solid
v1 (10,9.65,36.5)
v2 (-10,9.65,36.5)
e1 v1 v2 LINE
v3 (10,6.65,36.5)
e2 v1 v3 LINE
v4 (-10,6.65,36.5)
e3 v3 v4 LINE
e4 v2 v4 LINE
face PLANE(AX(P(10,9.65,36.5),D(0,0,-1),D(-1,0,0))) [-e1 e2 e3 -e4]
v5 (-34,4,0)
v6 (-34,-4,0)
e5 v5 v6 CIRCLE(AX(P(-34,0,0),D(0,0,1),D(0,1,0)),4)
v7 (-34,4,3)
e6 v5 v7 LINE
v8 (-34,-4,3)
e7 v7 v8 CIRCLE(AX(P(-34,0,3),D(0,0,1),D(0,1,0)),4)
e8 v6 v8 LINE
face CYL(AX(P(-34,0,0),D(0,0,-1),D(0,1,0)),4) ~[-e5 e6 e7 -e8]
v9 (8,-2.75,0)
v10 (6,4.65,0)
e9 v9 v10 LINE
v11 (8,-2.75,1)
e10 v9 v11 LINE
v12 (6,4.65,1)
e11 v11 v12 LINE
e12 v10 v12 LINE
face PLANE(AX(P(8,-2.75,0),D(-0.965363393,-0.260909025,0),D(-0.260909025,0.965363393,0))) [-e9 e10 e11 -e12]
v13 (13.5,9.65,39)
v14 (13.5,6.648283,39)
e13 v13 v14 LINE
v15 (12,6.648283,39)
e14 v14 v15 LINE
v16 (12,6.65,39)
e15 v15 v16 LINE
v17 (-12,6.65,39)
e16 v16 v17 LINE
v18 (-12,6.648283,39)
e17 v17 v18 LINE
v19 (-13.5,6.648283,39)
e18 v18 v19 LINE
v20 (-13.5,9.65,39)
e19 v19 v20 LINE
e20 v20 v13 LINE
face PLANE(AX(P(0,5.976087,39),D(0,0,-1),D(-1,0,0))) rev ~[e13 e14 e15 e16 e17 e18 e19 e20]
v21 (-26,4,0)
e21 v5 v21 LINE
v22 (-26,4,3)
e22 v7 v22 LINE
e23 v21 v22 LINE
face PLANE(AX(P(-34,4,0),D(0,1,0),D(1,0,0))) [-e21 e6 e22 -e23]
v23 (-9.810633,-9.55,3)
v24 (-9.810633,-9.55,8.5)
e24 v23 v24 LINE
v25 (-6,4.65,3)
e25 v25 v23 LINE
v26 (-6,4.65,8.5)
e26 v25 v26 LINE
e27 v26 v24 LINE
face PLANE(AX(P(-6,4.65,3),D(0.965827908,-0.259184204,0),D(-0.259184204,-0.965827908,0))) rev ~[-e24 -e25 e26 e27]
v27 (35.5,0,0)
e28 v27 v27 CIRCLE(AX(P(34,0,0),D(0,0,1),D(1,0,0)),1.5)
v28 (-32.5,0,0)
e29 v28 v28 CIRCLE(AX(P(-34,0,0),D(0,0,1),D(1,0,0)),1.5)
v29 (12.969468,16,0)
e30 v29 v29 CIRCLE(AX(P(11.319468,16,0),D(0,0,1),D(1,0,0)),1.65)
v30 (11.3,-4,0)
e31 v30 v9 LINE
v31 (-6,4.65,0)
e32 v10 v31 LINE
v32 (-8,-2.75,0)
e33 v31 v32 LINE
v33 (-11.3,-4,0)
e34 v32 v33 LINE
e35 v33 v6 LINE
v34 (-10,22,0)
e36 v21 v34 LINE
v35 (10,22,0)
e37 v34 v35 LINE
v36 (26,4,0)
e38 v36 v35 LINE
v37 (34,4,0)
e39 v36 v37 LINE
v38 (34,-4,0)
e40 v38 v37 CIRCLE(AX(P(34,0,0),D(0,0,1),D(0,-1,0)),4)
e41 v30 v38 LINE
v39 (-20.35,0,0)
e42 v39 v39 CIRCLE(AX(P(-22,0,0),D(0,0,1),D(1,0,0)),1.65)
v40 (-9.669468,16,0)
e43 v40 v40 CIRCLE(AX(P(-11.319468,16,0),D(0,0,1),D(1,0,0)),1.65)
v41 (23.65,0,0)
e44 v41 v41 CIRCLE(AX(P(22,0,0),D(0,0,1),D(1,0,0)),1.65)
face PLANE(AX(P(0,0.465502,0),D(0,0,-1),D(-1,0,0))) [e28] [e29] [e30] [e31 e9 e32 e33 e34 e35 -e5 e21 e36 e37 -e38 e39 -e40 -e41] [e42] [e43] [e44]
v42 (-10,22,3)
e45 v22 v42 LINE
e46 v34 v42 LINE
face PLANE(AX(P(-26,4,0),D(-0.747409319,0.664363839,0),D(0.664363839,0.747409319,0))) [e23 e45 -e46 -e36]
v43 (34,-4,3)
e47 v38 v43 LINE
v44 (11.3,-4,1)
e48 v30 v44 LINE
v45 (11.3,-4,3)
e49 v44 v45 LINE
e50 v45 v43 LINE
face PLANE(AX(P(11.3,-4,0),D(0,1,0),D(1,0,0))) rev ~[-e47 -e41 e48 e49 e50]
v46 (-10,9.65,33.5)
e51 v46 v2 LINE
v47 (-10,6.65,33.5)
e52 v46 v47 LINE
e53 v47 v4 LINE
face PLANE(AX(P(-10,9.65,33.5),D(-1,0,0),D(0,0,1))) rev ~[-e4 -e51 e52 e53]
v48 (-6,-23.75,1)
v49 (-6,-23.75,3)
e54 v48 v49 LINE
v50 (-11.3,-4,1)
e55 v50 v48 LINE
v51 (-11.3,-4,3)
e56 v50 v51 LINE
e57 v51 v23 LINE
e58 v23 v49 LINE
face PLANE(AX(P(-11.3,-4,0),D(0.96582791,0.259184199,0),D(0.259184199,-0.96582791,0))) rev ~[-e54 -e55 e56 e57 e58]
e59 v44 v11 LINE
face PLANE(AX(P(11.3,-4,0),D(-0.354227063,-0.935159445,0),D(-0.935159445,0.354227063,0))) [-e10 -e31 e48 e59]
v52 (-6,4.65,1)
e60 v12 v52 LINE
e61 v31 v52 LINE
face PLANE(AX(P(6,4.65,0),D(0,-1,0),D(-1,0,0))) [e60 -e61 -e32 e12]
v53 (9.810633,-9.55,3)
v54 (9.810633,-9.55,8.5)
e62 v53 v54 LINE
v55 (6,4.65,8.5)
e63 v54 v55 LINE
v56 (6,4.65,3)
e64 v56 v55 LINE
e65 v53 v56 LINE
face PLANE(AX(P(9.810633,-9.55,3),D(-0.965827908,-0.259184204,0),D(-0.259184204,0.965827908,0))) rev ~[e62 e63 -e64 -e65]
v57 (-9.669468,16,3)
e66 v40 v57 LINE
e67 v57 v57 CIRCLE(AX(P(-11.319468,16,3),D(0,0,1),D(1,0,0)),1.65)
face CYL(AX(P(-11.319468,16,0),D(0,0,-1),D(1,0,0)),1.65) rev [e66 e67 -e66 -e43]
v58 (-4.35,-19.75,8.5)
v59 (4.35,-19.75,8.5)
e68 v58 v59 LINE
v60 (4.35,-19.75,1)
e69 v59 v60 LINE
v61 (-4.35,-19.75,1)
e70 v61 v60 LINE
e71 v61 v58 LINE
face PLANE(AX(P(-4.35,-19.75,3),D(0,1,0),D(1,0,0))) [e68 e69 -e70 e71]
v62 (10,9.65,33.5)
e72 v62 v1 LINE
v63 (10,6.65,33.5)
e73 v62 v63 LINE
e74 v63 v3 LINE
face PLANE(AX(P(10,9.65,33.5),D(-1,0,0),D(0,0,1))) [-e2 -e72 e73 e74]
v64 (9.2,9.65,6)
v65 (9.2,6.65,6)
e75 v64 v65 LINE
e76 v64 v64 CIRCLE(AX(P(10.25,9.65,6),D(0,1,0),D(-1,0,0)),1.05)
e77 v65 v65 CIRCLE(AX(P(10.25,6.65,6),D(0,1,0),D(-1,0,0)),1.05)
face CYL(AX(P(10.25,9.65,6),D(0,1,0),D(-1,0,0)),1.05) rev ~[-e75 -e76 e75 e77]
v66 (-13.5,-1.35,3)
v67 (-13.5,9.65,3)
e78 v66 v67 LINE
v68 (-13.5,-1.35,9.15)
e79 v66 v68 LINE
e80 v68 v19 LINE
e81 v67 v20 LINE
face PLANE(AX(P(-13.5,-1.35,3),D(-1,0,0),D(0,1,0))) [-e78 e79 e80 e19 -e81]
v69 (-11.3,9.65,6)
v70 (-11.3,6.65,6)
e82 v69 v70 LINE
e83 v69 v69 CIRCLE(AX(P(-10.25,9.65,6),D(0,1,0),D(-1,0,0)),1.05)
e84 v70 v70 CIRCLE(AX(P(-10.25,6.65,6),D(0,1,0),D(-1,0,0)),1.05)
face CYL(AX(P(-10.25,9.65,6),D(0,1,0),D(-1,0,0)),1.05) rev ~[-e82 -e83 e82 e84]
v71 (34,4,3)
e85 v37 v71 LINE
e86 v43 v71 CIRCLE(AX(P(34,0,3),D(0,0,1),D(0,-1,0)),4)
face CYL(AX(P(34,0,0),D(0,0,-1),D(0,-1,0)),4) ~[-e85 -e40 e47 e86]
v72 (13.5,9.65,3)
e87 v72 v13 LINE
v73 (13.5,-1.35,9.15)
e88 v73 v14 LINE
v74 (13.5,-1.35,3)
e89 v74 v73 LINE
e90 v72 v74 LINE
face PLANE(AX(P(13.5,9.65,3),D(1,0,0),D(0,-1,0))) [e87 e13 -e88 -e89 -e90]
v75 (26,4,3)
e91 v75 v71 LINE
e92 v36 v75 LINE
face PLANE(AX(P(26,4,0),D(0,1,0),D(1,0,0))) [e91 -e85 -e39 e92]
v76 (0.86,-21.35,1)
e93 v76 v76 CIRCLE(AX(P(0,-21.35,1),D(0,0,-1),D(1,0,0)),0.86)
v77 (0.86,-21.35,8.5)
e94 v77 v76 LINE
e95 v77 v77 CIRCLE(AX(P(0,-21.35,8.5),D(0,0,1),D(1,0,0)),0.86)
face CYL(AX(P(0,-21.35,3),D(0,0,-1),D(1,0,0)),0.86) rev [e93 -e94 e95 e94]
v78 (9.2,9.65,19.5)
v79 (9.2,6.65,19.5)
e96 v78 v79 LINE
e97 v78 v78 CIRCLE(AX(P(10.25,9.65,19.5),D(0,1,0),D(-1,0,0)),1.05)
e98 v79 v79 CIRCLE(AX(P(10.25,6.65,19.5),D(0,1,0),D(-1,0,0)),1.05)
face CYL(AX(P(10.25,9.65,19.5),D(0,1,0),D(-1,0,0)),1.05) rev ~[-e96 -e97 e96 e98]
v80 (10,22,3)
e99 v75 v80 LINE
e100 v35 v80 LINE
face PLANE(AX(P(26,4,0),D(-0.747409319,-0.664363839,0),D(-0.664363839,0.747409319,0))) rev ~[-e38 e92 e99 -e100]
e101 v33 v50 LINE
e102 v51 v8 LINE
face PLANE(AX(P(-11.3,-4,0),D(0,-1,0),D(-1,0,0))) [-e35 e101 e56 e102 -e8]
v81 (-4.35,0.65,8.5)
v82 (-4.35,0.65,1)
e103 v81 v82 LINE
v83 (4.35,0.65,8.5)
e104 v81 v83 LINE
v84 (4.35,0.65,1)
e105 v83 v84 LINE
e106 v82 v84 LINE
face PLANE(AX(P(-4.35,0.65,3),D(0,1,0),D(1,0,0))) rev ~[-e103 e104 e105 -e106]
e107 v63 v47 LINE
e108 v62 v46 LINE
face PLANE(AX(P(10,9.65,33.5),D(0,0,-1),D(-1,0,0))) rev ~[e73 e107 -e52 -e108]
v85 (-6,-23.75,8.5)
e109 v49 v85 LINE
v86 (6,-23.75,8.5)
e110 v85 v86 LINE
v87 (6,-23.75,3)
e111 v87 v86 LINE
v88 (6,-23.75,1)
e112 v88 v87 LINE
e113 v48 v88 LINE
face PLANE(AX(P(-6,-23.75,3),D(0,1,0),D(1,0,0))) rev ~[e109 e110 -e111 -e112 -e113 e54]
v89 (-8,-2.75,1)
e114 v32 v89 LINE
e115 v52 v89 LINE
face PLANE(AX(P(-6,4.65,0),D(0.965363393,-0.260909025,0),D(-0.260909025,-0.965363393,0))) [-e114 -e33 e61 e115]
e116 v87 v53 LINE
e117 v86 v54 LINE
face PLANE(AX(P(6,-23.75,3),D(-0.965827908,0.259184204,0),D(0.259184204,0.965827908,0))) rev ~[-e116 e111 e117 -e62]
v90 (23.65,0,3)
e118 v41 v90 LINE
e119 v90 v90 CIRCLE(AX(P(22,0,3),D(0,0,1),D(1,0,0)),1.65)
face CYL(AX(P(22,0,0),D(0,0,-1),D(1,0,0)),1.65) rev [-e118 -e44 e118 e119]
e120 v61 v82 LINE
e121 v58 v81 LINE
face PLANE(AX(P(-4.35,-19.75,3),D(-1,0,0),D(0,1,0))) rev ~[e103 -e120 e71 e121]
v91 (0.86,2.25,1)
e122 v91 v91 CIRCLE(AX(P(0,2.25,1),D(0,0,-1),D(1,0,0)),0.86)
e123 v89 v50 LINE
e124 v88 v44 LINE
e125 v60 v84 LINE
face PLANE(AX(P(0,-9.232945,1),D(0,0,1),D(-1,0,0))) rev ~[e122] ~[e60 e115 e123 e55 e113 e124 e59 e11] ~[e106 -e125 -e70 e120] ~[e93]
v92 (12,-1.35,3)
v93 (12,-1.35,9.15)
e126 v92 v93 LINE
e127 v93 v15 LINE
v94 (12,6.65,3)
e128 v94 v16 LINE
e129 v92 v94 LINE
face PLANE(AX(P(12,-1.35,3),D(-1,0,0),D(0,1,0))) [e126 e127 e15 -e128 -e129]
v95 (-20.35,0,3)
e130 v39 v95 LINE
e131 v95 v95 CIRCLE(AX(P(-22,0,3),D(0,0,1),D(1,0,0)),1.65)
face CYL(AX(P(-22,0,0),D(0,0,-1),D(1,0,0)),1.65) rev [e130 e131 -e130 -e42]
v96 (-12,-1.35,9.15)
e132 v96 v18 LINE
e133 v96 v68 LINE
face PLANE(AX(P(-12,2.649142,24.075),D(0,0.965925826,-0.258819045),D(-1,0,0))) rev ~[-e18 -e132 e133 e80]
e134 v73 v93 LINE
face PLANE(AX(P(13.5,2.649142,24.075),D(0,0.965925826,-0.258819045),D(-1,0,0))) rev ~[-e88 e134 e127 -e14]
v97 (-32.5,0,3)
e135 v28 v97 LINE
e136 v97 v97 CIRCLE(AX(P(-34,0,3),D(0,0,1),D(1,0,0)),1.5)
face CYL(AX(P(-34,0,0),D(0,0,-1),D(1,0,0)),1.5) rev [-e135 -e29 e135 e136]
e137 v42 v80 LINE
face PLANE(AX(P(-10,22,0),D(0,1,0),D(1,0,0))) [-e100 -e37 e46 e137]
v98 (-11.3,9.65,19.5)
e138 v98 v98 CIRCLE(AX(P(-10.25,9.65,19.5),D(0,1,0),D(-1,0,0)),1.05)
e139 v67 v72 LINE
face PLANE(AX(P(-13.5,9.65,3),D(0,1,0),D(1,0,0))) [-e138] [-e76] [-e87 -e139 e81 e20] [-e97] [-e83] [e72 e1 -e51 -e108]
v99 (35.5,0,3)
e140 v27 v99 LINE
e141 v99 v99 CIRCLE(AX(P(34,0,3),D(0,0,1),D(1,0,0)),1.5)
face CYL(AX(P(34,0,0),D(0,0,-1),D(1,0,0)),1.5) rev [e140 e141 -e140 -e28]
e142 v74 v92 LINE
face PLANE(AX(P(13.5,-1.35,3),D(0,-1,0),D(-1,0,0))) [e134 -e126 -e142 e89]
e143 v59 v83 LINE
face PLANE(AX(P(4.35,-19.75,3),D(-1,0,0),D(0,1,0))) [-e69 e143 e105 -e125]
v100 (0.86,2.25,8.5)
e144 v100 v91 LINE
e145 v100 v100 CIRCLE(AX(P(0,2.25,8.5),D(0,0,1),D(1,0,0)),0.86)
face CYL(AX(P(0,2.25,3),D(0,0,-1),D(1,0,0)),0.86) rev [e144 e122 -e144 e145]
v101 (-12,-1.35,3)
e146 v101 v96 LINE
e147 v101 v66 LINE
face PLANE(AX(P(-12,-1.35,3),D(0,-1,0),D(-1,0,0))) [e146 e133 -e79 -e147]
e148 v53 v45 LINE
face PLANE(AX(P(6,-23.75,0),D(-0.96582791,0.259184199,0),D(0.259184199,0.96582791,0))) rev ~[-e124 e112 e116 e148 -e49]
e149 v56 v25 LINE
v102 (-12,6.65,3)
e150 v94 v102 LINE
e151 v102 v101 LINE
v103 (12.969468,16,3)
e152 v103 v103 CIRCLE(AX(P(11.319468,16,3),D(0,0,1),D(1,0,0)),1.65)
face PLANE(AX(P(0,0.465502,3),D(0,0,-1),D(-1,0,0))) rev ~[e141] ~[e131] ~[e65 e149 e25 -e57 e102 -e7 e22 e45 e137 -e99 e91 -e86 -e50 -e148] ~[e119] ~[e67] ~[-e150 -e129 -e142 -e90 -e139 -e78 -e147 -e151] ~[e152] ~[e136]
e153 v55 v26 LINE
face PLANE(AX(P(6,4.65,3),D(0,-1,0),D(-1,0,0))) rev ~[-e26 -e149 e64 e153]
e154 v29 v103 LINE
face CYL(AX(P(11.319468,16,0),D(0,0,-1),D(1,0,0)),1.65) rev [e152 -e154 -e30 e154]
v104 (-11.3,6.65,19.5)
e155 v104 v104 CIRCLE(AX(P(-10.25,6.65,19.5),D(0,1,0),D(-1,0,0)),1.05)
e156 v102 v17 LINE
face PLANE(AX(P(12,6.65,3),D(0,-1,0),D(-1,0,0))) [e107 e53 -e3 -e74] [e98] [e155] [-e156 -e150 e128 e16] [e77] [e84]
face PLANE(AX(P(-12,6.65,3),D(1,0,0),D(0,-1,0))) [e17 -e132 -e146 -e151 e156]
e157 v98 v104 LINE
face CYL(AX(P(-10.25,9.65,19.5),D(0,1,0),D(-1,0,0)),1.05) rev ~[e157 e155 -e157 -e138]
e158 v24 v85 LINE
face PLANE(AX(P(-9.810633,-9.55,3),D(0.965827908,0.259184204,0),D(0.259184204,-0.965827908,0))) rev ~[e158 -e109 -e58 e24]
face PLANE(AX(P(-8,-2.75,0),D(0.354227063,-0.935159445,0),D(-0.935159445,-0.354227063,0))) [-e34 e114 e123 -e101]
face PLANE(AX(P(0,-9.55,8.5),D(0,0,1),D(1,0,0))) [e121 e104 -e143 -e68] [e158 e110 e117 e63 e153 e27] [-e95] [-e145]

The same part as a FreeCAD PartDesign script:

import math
import FreeCAD as App
import Part
import Sketcher
Q = App.Units.Quantity


def edges_at(feature, points):
    """Names of the edges that pass closest to the given points."""
    edges = feature.Shape.Edges
    near = lambda p: min(range(len(edges)), key=lambda i: edges[i].distToShape(Part.Vertex(*p))[0])
    return sorted({f"Edge{near(p) + 1}" for p in points})

doc = App.newDocument("Part")
params = doc.addObject("Spreadsheet::Sheet", "Params")
for row, (alias, value) in enumerate([
    ("sketch1_diameter", "3 mm"),
    ("sketch1_radius", "4 mm"),
    ("sketch1_diameter2", "3.3 mm"),
    ("sketch1_diameter3", "1.72 mm"),
    ("sketch1_width", "12 mm"),
    ("pad1_length", "3 mm"),
    ("sketch2_diameter", "1.72 mm"),
    ("sketch2_width", "12 mm"),
    ("sketch2_width2", "8.7 mm"),
    ("sketch2_height", "20.4 mm"),
    ("pad2_length", "5.5 mm"),
    ("sketch3_width", "24 mm"),
    ("sketch3_width2", "27 mm"),
    ("sketch3_height", "8 mm"),
    ("sketch3_height2", "11 mm"),
    ("pad3_length", "36 mm"),
    ("chamfer_size", "29.85 mm"),
    ("chamfer2_size", "29.85 mm"),
    ("sketch4_diameter", "2.1 mm"),
    ("sketch4_width", "20 mm"),
    ("sketch4_height", "3 mm"),
    ("pocket1_length", "3 mm"),
    ("sketch5_width", "12 mm"),
    ("pocket2_length", "1 mm"),
], start=1):
    params.set(f"A{row}", alias)
    params.set(f"B{row}", "=" + value)
    params.setAlias(f"B{row}", alias)

body = doc.addObject("PartDesign::Body", "Body")

# Sketch on XY plane
sketch1 = body.newObject("Sketcher::SketchObject", "Sketch")
sketch1.AttachmentSupport = (doc.getObject("XY_Plane"), [""])
sketch1.MapMode = "FlatFace"
sketch1.addGeometry(Part.LineSegment(App.Vector(-34, -4, 0), App.Vector(-11.3, -4, 0)), False)
sketch1.addGeometry(Part.LineSegment(App.Vector(-11.3, -4, 0), App.Vector(-6, -23.75, 0)), False)
sketch1.addGeometry(Part.LineSegment(App.Vector(-6, -23.75, 0), App.Vector(6, -23.75, 0)), False)
sketch1.addGeometry(Part.LineSegment(App.Vector(6, -23.75, 0), App.Vector(11.3, -4, 0)), False)
sketch1.addGeometry(Part.LineSegment(App.Vector(11.3, -4, 0), App.Vector(34, -4, 0)), False)
sketch1.addGeometry(Part.ArcOfCircle(Part.Circle(App.Vector(34, 0, 0), App.Vector(0, 0, 1), 4), math.radians(-90), math.radians(90)), False)
sketch1.addGeometry(Part.LineSegment(App.Vector(34, 4, 0), App.Vector(26, 4, 0)), False)
sketch1.addGeometry(Part.LineSegment(App.Vector(26, 4, 0), App.Vector(10, 22, 0)), False)
sketch1.addGeometry(Part.LineSegment(App.Vector(10, 22, 0), App.Vector(-10, 22, 0)), False)
sketch1.addGeometry(Part.LineSegment(App.Vector(-10, 22, 0), App.Vector(-26, 4, 0)), False)
sketch1.addGeometry(Part.LineSegment(App.Vector(-26, 4, 0), App.Vector(-34, 4, 0)), False)
sketch1.addGeometry(Part.ArcOfCircle(Part.Circle(App.Vector(-34, 0, 0), App.Vector(0, 0, 1), 4), math.radians(90), math.radians(270)), False)
sketch1.addGeometry(Part.Circle(App.Vector(0, -21.35, 0), App.Vector(0, 0, 1), 0.86), False)
sketch1.addGeometry(Part.LineSegment(App.Vector(-4.35, -19.75, 0), App.Vector(-4.35, 0.65, 0)), False)
sketch1.addGeometry(Part.LineSegment(App.Vector(-4.35, 0.65, 0), App.Vector(4.35, 0.65, 0)), False)
sketch1.addGeometry(Part.LineSegment(App.Vector(4.35, 0.65, 0), App.Vector(4.35, -19.75, 0)), False)
sketch1.addGeometry(Part.LineSegment(App.Vector(4.35, -19.75, 0), App.Vector(-4.35, -19.75, 0)), False)
sketch1.addGeometry(Part.Circle(App.Vector(34, 0, 0), App.Vector(0, 0, 1), 1.5), False)
sketch1.addGeometry(Part.Circle(App.Vector(22, 0, 0), App.Vector(0, 0, 1), 1.65), False)
sketch1.addGeometry(Part.Circle(App.Vector(11.319468, 16, 0), App.Vector(0, 0, 1), 1.65), False)
sketch1.addGeometry(Part.Circle(App.Vector(0, 2.25, 0), App.Vector(0, 0, 1), 0.86), False)
sketch1.addGeometry(Part.Circle(App.Vector(-22, 0, 0), App.Vector(0, 0, 1), 1.65), False)
sketch1.addGeometry(Part.Circle(App.Vector(-34, 0, 0), App.Vector(0, 0, 1), 1.5), False)
sketch1.addGeometry(Part.Circle(App.Vector(-11.319468, 16, 0), App.Vector(0, 0, 1), 1.65), False)
sketch1.addConstraint(Sketcher.Constraint("Coincident", 0, 2, 1, 1))
sketch1.addConstraint(Sketcher.Constraint("Coincident", 1, 2, 2, 1))
sketch1.addConstraint(Sketcher.Constraint("Coincident", 2, 2, 3, 1))
sketch1.addConstraint(Sketcher.Constraint("Coincident", 3, 2, 4, 1))
sketch1.addConstraint(Sketcher.Constraint("Tangent", 4, 2, 5, 1))
sketch1.addConstraint(Sketcher.Constraint("Tangent", 5, 2, 6, 1))
sketch1.addConstraint(Sketcher.Constraint("Coincident", 6, 2, 7, 1))
sketch1.addConstraint(Sketcher.Constraint("Coincident", 7, 2, 8, 1))
sketch1.addConstraint(Sketcher.Constraint("Coincident", 8, 2, 9, 1))
sketch1.addConstraint(Sketcher.Constraint("Coincident", 9, 2, 10, 1))
sketch1.addConstraint(Sketcher.Constraint("Tangent", 10, 2, 11, 1))
sketch1.addConstraint(Sketcher.Constraint("Tangent", 11, 2, 0, 1))
sketch1.addConstraint(Sketcher.Constraint("Coincident", 13, 2, 14, 1))
sketch1.addConstraint(Sketcher.Constraint("Coincident", 14, 2, 15, 1))
sketch1.addConstraint(Sketcher.Constraint("Coincident", 15, 2, 16, 1))
sketch1.addConstraint(Sketcher.Constraint("Coincident", 16, 2, 13, 1))
sketch1.addConstraint(Sketcher.Constraint("Horizontal", 0))
sketch1.addConstraint(Sketcher.Constraint("Horizontal", 2))
sketch1.addConstraint(Sketcher.Constraint("Horizontal", 4))
sketch1.addConstraint(Sketcher.Constraint("Horizontal", 6))
sketch1.addConstraint(Sketcher.Constraint("Horizontal", 8))
sketch1.addConstraint(Sketcher.Constraint("Horizontal", 10))
sketch1.addConstraint(Sketcher.Constraint("Vertical", 13))
sketch1.addConstraint(Sketcher.Constraint("Horizontal", 14))
sketch1.addConstraint(Sketcher.Constraint("Vertical", 15))
sketch1.addConstraint(Sketcher.Constraint("Horizontal", 16))
sketch1.addConstraint(Sketcher.Constraint("Coincident", 17, 3, 5, 3))
sketch1.addConstraint(Sketcher.Constraint("Coincident", 22, 3, 11, 3))
sketch1.addConstraint(Sketcher.Constraint("Equal", 5, 11))
sketch1.addConstraint(Sketcher.Constraint("Equal", 18, 19))
sketch1.addConstraint(Sketcher.Constraint("Equal", 12, 20))
sketch1.addConstraint(Sketcher.Constraint("Equal", 19, 21))
sketch1.addConstraint(Sketcher.Constraint("Equal", 17, 22))
sketch1.addConstraint(Sketcher.Constraint("Equal", 21, 23))
sketch1.addConstraint(Sketcher.Constraint("Symmetric", 5, 3, 11, 3, -1, 1))
sketch1.addConstraint(Sketcher.Constraint("Symmetric", 18, 3, 21, 3, -1, 1))
sketch1.addConstraint(Sketcher.Constraint("Symmetric", 19, 3, 23, 3, -2))
sketch1.addConstraint(Sketcher.Constraint("Symmetric", 0, 2, 3, 2, -2))
sketch1.addConstraint(Sketcher.Constraint("PointOnObject", 12, 3, -2))
sketch1.addConstraint(Sketcher.Constraint("PointOnObject", 18, 3, -1))
sketch1.addConstraint(Sketcher.Constraint("PointOnObject", 20, 3, -2))
sketch1.addConstraint(Sketcher.Constraint("Equal", 6, 10))
sketch1.addConstraint(Sketcher.Constraint("Equal", 1, 3))
sketch1.addConstraint(Sketcher.Constraint("Equal", 7, 9))
sketch1.addConstraint(Sketcher.Constraint("Diameter", 17, Q("3 mm")))
sketch1.addConstraint(Sketcher.Constraint("Radius", 5, Q("4 mm")))
sketch1.addConstraint(Sketcher.Constraint("Diameter", 18, Q("3.3 mm")))
sketch1.addConstraint(Sketcher.Constraint("Diameter", 12, Q("1.72 mm")))
sketch1.addConstraint(Sketcher.Constraint("DistanceX", 2, 1, 2, 2, Q("12 mm")))
sketch1.addConstraint(Sketcher.Constraint("DistanceX", 6, 2, 6, 1, Q("8 mm")))
sketch1.addConstraint(Sketcher.Constraint("DistanceX", 8, 2, 8, 1, Q("20 mm")))
sketch1.addConstraint(Sketcher.Constraint("DistanceX", 0, 1, 0, 2, Q("22.7 mm")))
sketch1.addConstraint(Sketcher.Constraint("DistanceX", 14, 1, 14, 2, Q("8.7 mm")))
sketch1.addConstraint(Sketcher.Constraint("DistanceY", 13, 1, 13, 2, Q("20.4 mm")))
sketch1.addConstraint(Sketcher.Constraint("DistanceX", -1, 1, 5, 3, Q("34 mm")))
sketch1.addConstraint(Sketcher.Constraint("DistanceX", -1, 1, 18, 3, Q("22 mm")))
sketch1.addConstraint(Sketcher.Constraint("DistanceY", -1, 1, 19, 3, Q("16 mm")))
sketch1.addConstraint(Sketcher.Constraint("DistanceY", -1, 1, 7, 2, Q("22 mm")))
sketch1.addConstraint(Sketcher.Constraint("DistanceY", 1, 2, 20, 3, Q("26 mm")))
sketch1.addConstraint(Sketcher.Constraint("DistanceY", 2, 2, 15, 2, Q("4 mm")))
sketch1.addConstraint(Sketcher.Constraint("DistanceY", 12, 3, 20, 3, Q("23.6 mm")))
sketch1.addConstraint(Sketcher.Constraint("DistanceY", 12, 3, -1, 1, Q("21.35 mm")))
sketch1.addConstraint(Sketcher.Constraint("DistanceX", 13, 2, -1, 1, Q("4.35 mm")))
sketch1.addConstraint(Sketcher.Constraint("DistanceX", 19, 3, 5, 3, Q("22.680532 mm")))
sketch1.setExpression("Constraints[44]", "Params.sketch1_diameter")
sketch1.setExpression("Constraints[45]", "Params.sketch1_radius")
sketch1.setExpression("Constraints[46]", "Params.sketch1_diameter2")
sketch1.setExpression("Constraints[47]", "Params.sketch1_diameter3")
sketch1.setExpression("Constraints[48]", "Params.sketch1_width")
pad1 = body.newObject("PartDesign::Pad", "Pad")
pad1.Profile = sketch1
pad1.setExpression("Length", "Params.pad1_length")

# Sketch on XY plane
sketch2 = body.newObject("Sketcher::SketchObject", "Sketch001")
sketch2.AttachmentSupport = (doc.getObject("XY_Plane"), [""])
sketch2.MapMode = "FlatFace"
sketch2.AttachmentOffset = App.Placement(App.Vector(0, 0, 3), App.Rotation())
sketch2.addGeometry(Part.LineSegment(App.Vector(-6, -23.75, 0), App.Vector(6, -23.75, 0)), False)
sketch2.addGeometry(Part.LineSegment(App.Vector(6, -23.75, 0), App.Vector(9.810633, -9.55, 0)), False)
sketch2.addGeometry(Part.LineSegment(App.Vector(9.810633, -9.55, 0), App.Vector(6, 4.65, 0)), False)
sketch2.addGeometry(Part.LineSegment(App.Vector(6, 4.65, 0), App.Vector(-6, 4.65, 0)), False)
sketch2.addGeometry(Part.LineSegment(App.Vector(-6, 4.65, 0), App.Vector(-9.810633, -9.55, 0)), False)
sketch2.addGeometry(Part.LineSegment(App.Vector(-9.810633, -9.55, 0), App.Vector(-6, -23.75, 0)), False)
sketch2.addGeometry(Part.Circle(App.Vector(0, -21.35, 0), App.Vector(0, 0, 1), 0.86), False)
sketch2.addGeometry(Part.LineSegment(App.Vector(4.35, -19.75, 0), App.Vector(-4.35, -19.75, 0)), False)
sketch2.addGeometry(Part.LineSegment(App.Vector(-4.35, -19.75, 0), App.Vector(-4.35, 0.65, 0)), False)
sketch2.addGeometry(Part.LineSegment(App.Vector(-4.35, 0.65, 0), App.Vector(4.35, 0.65, 0)), False)
sketch2.addGeometry(Part.LineSegment(App.Vector(4.35, 0.65, 0), App.Vector(4.35, -19.75, 0)), False)
sketch2.addGeometry(Part.Circle(App.Vector(0, 2.25, 0), App.Vector(0, 0, 1), 0.86), False)
sketch2.addConstraint(Sketcher.Constraint("Coincident", 0, 2, 1, 1))
sketch2.addConstraint(Sketcher.Constraint("Coincident", 1, 2, 2, 1))
sketch2.addConstraint(Sketcher.Constraint("Coincident", 2, 2, 3, 1))
sketch2.addConstraint(Sketcher.Constraint("Coincident", 3, 2, 4, 1))
sketch2.addConstraint(Sketcher.Constraint("Coincident", 4, 2, 5, 1))
sketch2.addConstraint(Sketcher.Constraint("Coincident", 5, 2, 0, 1))
sketch2.addConstraint(Sketcher.Constraint("Coincident", 7, 2, 8, 1))
sketch2.addConstraint(Sketcher.Constraint("Coincident", 8, 2, 9, 1))
sketch2.addConstraint(Sketcher.Constraint("Coincident", 9, 2, 10, 1))
sketch2.addConstraint(Sketcher.Constraint("Coincident", 10, 2, 7, 1))
sketch2.addConstraint(Sketcher.Constraint("Horizontal", 0))
sketch2.addConstraint(Sketcher.Constraint("Horizontal", 3))
sketch2.addConstraint(Sketcher.Constraint("Horizontal", 7))
sketch2.addConstraint(Sketcher.Constraint("Vertical", 8))
sketch2.addConstraint(Sketcher.Constraint("Horizontal", 9))
sketch2.addConstraint(Sketcher.Constraint("Vertical", 10))
sketch2.addConstraint(Sketcher.Constraint("Equal", 6, 11))
sketch2.addConstraint(Sketcher.Constraint("Symmetric", 1, 2, 4, 2, -2))
sketch2.addConstraint(Sketcher.Constraint("PointOnObject", 6, 3, -2))
sketch2.addConstraint(Sketcher.Constraint("PointOnObject", 11, 3, -2))
sketch2.addConstraint(Sketcher.Constraint("Parallel", 1, 4))
sketch2.addConstraint(Sketcher.Constraint("Parallel", 2, 5))
sketch2.addConstraint(Sketcher.Constraint("Vertical", 0, 2, 2, 2))
sketch2.addConstraint(Sketcher.Constraint("Vertical", 3, 2, 5, 2))
sketch2.addConstraint(Sketcher.Constraint("Diameter", 6, Q("1.72 mm")))
sketch2.addConstraint(Sketcher.Constraint("DistanceX", 0, 1, 0, 2, Q("12 mm")))
sketch2.addConstraint(Sketcher.Constraint("DistanceX", 7, 2, 7, 1, Q("8.7 mm")))
sketch2.addConstraint(Sketcher.Constraint("DistanceY", 8, 1, 8, 2, Q("20.4 mm")))
sketch2.addConstraint(Sketcher.Constraint("DistanceY", 0, 2, 11, 3, Q("26 mm")))
sketch2.addConstraint(Sketcher.Constraint("DistanceY", 6, 3, 2, 2, Q("26 mm")))
sketch2.addConstraint(Sketcher.Constraint("DistanceY", 5, 2, 7, 2, Q("4 mm")))
sketch2.addConstraint(Sketcher.Constraint("DistanceY", 8, 2, 3, 2, Q("4 mm")))
sketch2.addConstraint(Sketcher.Constraint("DistanceY", 6, 3, -1, 1, Q("21.35 mm")))
sketch2.addConstraint(Sketcher.Constraint("DistanceX", 7, 2, -1, 1, Q("4.35 mm")))
sketch2.addConstraint(Sketcher.Constraint("Distance", 1, Q("14.702412 mm")))
sketch2.setExpression("Constraints[24]", "Params.sketch2_diameter")
sketch2.setExpression("Constraints[25]", "Params.sketch2_width")
sketch2.setExpression("Constraints[26]", "Params.sketch2_width2")
sketch2.setExpression("Constraints[27]", "Params.sketch2_height")
pad2 = body.newObject("PartDesign::Pad", "Pad001")
pad2.Profile = sketch2
pad2.setExpression("Length", "Params.pad2_length")

# Sketch on XY plane
sketch3 = body.newObject("Sketcher::SketchObject", "Sketch002")
sketch3.AttachmentSupport = (doc.getObject("XY_Plane"), [""])
sketch3.MapMode = "FlatFace"
sketch3.AttachmentOffset = App.Placement(App.Vector(0, 0, 3), App.Rotation())
sketch3.addGeometry(Part.LineSegment(App.Vector(-12, -1.35, 0), App.Vector(-12, 6.65, 0)), False)
sketch3.addGeometry(Part.LineSegment(App.Vector(-12, 6.65, 0), App.Vector(12, 6.65, 0)), False)
sketch3.addGeometry(Part.LineSegment(App.Vector(12, 6.65, 0), App.Vector(12, -1.35, 0)), False)
sketch3.addGeometry(Part.LineSegment(App.Vector(12, -1.35, 0), App.Vector(13.5, -1.35, 0)), False)
sketch3.addGeometry(Part.LineSegment(App.Vector(13.5, -1.35, 0), App.Vector(13.5, 9.65, 0)), False)
sketch3.addGeometry(Part.LineSegment(App.Vector(13.5, 9.65, 0), App.Vector(-13.5, 9.65, 0)), False)
sketch3.addGeometry(Part.LineSegment(App.Vector(-13.5, 9.65, 0), App.Vector(-13.5, -1.35, 0)), False)
sketch3.addGeometry(Part.LineSegment(App.Vector(-13.5, -1.35, 0), App.Vector(-12, -1.35, 0)), False)
sketch3.addConstraint(Sketcher.Constraint("Coincident", 0, 2, 1, 1))
sketch3.addConstraint(Sketcher.Constraint("Coincident", 1, 2, 2, 1))
sketch3.addConstraint(Sketcher.Constraint("Coincident", 2, 2, 3, 1))
sketch3.addConstraint(Sketcher.Constraint("Coincident", 3, 2, 4, 1))
sketch3.addConstraint(Sketcher.Constraint("Coincident", 4, 2, 5, 1))
sketch3.addConstraint(Sketcher.Constraint("Coincident", 5, 2, 6, 1))
sketch3.addConstraint(Sketcher.Constraint("Coincident", 6, 2, 7, 1))
sketch3.addConstraint(Sketcher.Constraint("Coincident", 7, 2, 0, 1))
sketch3.addConstraint(Sketcher.Constraint("Vertical", 0))
sketch3.addConstraint(Sketcher.Constraint("Horizontal", 1))
sketch3.addConstraint(Sketcher.Constraint("Vertical", 2))
sketch3.addConstraint(Sketcher.Constraint("Horizontal", 3))
sketch3.addConstraint(Sketcher.Constraint("Vertical", 4))
sketch3.addConstraint(Sketcher.Constraint("Horizontal", 5))
sketch3.addConstraint(Sketcher.Constraint("Vertical", 6))
sketch3.addConstraint(Sketcher.Constraint("Horizontal", 7))
sketch3.addConstraint(Sketcher.Constraint("Symmetric", 3, 2, 6, 2, -2))
sketch3.addConstraint(Sketcher.Constraint("Equal", 3, 7))
sketch3.addConstraint(Sketcher.Constraint("DistanceX", 1, 1, 1, 2, Q("24 mm")))
sketch3.addConstraint(Sketcher.Constraint("DistanceX", 5, 2, 5, 1, Q("27 mm")))
sketch3.addConstraint(Sketcher.Constraint("DistanceY", 0, 1, 0, 2, Q("8 mm")))
sketch3.addConstraint(Sketcher.Constraint("DistanceY", 4, 1, 4, 2, Q("11 mm")))
sketch3.addConstraint(Sketcher.Constraint("DistanceY", -1, 1, 0, 2, Q("6.65 mm")))
sketch3.setExpression("Constraints[18]", "Params.sketch3_width")
sketch3.setExpression("Constraints[19]", "Params.sketch3_width2")
sketch3.setExpression("Constraints[20]", "Params.sketch3_height")
sketch3.setExpression("Constraints[21]", "Params.sketch3_height2")
pad3 = body.newObject("PartDesign::Pad", "Pad002")
pad3.Profile = sketch3
pad3.setExpression("Length", "Params.pad3_length")
doc.recompute()

chamfer = body.newObject("PartDesign::Chamfer", "Chamfer")
chamfer.Base = (pad3, edges_at(pad3, [(-12.75, -1.35, 39)]))
chamfer.ChamferType = "Distance and Angle"
chamfer.setExpression("Size", "Params.chamfer_size")
chamfer.Angle = 15
doc.recompute()

chamfer2 = body.newObject("PartDesign::Chamfer", "Chamfer001")
chamfer2.Base = (chamfer, edges_at(chamfer, [(12.75, -1.35, 39)]))
chamfer2.ChamferType = "Distance and Angle"
chamfer2.setExpression("Size", "Params.chamfer2_size")
chamfer2.Angle = 15
chamfer2.FlipDirection = True

# Sketch on XZ plane
sketch4 = body.newObject("Sketcher::SketchObject", "Sketch003")
sketch4.AttachmentSupport = (doc.getObject("XZ_Plane"), [""])
sketch4.MapMode = "FlatFace"
sketch4.AttachmentOffset = App.Placement(App.Vector(0, 0, -9.65), App.Rotation())
sketch4.addGeometry(Part.Circle(App.Vector(10.25, 6, 0), App.Vector(0, 0, 1), 1.05), False)
sketch4.addGeometry(Part.Circle(App.Vector(10.25, 19.5, 0), App.Vector(0, 0, 1), 1.05), False)
sketch4.addGeometry(Part.Circle(App.Vector(-10.25, 6, 0), App.Vector(0, 0, 1), 1.05), False)
sketch4.addGeometry(Part.Circle(App.Vector(-10.25, 19.5, 0), App.Vector(0, 0, 1), 1.05), False)
sketch4.addGeometry(Part.LineSegment(App.Vector(10, 36.5, 0), App.Vector(10, 33.5, 0)), False)
sketch4.addGeometry(Part.LineSegment(App.Vector(10, 33.5, 0), App.Vector(-10, 33.5, 0)), False)
sketch4.addGeometry(Part.LineSegment(App.Vector(-10, 33.5, 0), App.Vector(-10, 36.5, 0)), False)
sketch4.addGeometry(Part.LineSegment(App.Vector(-10, 36.5, 0), App.Vector(10, 36.5, 0)), False)
sketch4.addConstraint(Sketcher.Constraint("Coincident", 4, 2, 5, 1))
sketch4.addConstraint(Sketcher.Constraint("Coincident", 5, 2, 6, 1))
sketch4.addConstraint(Sketcher.Constraint("Coincident", 6, 2, 7, 1))
sketch4.addConstraint(Sketcher.Constraint("Coincident", 7, 2, 4, 1))
sketch4.addConstraint(Sketcher.Constraint("Vertical", 4))
sketch4.addConstraint(Sketcher.Constraint("Horizontal", 5))
sketch4.addConstraint(Sketcher.Constraint("Vertical", 6))
sketch4.addConstraint(Sketcher.Constraint("Horizontal", 7))
sketch4.addConstraint(Sketcher.Constraint("Equal", 0, 1))
sketch4.addConstraint(Sketcher.Constraint("Equal", 1, 2))
sketch4.addConstraint(Sketcher.Constraint("Equal", 2, 3))
sketch4.addConstraint(Sketcher.Constraint("Symmetric", 0, 3, 2, 3, -2))
sketch4.addConstraint(Sketcher.Constraint("Symmetric", 1, 3, 3, 3, -2))
sketch4.addConstraint(Sketcher.Constraint("Vertical", 0, 3, 1, 3))
sketch4.addConstraint(Sketcher.Constraint("Diameter", 0, Q("2.1 mm")))
sketch4.addConstraint(Sketcher.Constraint("DistanceX", 5, 2, 5, 1, Q("20 mm")))
sketch4.addConstraint(Sketcher.Constraint("DistanceY", 4, 2, 4, 1, Q("3 mm")))
sketch4.addConstraint(Sketcher.Constraint("DistanceY", -1, 1, 0, 3, Q("6 mm")))
sketch4.addConstraint(Sketcher.Constraint("DistanceX", -1, 1, 4, 2, Q("10 mm")))
sketch4.addConstraint(Sketcher.Constraint("DistanceY", 1, 3, 4, 2, Q("14 mm")))
sketch4.addConstraint(Sketcher.Constraint("DistanceY", -1, 1, 1, 3, Q("19.5 mm")))
sketch4.addConstraint(Sketcher.Constraint("DistanceX", 2, 3, 0, 3, Q("20.5 mm")))
sketch4.setExpression("Constraints[14]", "Params.sketch4_diameter")
sketch4.setExpression("Constraints[15]", "Params.sketch4_width")
sketch4.setExpression("Constraints[16]", "Params.sketch4_height")
pocket1 = body.newObject("PartDesign::Pocket", "Pocket")
pocket1.Profile = sketch4
pocket1.setExpression("Length", "Params.pocket1_length")
pocket1.Reversed = True

# Sketch on XY plane
sketch5 = body.newObject("Sketcher::SketchObject", "Sketch004")
sketch5.AttachmentSupport = (doc.getObject("XY_Plane"), [""])
sketch5.MapMode = "FlatFace"
sketch5.addGeometry(Part.LineSegment(App.Vector(-11.3, -4, 0), App.Vector(-8, -2.75, 0)), False)
sketch5.addGeometry(Part.LineSegment(App.Vector(-8, -2.75, 0), App.Vector(-6, 4.65, 0)), False)
sketch5.addGeometry(Part.LineSegment(App.Vector(-6, 4.65, 0), App.Vector(6, 4.65, 0)), False)
sketch5.addGeometry(Part.LineSegment(App.Vector(6, 4.65, 0), App.Vector(8, -2.75, 0)), False)
sketch5.addGeometry(Part.LineSegment(App.Vector(8, -2.75, 0), App.Vector(11.3, -4, 0)), False)
sketch5.addGeometry(Part.LineSegment(App.Vector(11.3, -4, 0), App.Vector(6, -23.75, 0)), False)
sketch5.addGeometry(Part.LineSegment(App.Vector(6, -23.75, 0), App.Vector(-6, -23.75, 0)), False)
sketch5.addGeometry(Part.LineSegment(App.Vector(-6, -23.75, 0), App.Vector(-11.3, -4, 0)), False)
sketch5.addConstraint(Sketcher.Constraint("Coincident", 0, 2, 1, 1))
sketch5.addConstraint(Sketcher.Constraint("Coincident", 1, 2, 2, 1))
sketch5.addConstraint(Sketcher.Constraint("Coincident", 2, 2, 3, 1))
sketch5.addConstraint(Sketcher.Constraint("Coincident", 3, 2, 4, 1))
sketch5.addConstraint(Sketcher.Constraint("Coincident", 4, 2, 5, 1))
sketch5.addConstraint(Sketcher.Constraint("Coincident", 5, 2, 6, 1))
sketch5.addConstraint(Sketcher.Constraint("Coincident", 6, 2, 7, 1))
sketch5.addConstraint(Sketcher.Constraint("Coincident", 7, 2, 0, 1))
sketch5.addConstraint(Sketcher.Constraint("Horizontal", 2))
sketch5.addConstraint(Sketcher.Constraint("Horizontal", 6))
sketch5.addConstraint(Sketcher.Constraint("Symmetric", 0, 2, 3, 2, -2))
sketch5.addConstraint(Sketcher.Constraint("Symmetric", 4, 2, 7, 2, -2))
sketch5.addConstraint(Sketcher.Constraint("Vertical", 2, 2, 5, 2))
sketch5.addConstraint(Sketcher.Constraint("Vertical", 1, 2, 6, 2))
sketch5.addConstraint(Sketcher.Constraint("Equal", 1, 3))
sketch5.addConstraint(Sketcher.Constraint("DistanceX", 2, 1, 2, 2, Q("12 mm")))
sketch5.addConstraint(Sketcher.Constraint("DistanceX", 0, 2, -1, 1, Q("8 mm")))
sketch5.addConstraint(Sketcher.Constraint("DistanceY", 4, 2, -1, 1, Q("4 mm")))
sketch5.addConstraint(Sketcher.Constraint("DistanceY", 5, 2, 3, 2, Q("21 mm")))
sketch5.addConstraint(Sketcher.Constraint("DistanceX", -1, 1, 4, 2, Q("11.3 mm")))
sketch5.addConstraint(Sketcher.Constraint("DistanceY", 0, 2, 1, 2, Q("7.4 mm")))
sketch5.addConstraint(Sketcher.Constraint("DistanceY", 0, 2, -1, 1, Q("2.75 mm")))
sketch5.setExpression("Constraints[15]", "Params.sketch5_width")
pocket2 = body.newObject("PartDesign::Pocket", "Pocket001")
pocket2.Profile = sketch5
pocket2.setExpression("Length", "Params.pocket2_length")
pocket2.Reversed = True

doc.recompute()
